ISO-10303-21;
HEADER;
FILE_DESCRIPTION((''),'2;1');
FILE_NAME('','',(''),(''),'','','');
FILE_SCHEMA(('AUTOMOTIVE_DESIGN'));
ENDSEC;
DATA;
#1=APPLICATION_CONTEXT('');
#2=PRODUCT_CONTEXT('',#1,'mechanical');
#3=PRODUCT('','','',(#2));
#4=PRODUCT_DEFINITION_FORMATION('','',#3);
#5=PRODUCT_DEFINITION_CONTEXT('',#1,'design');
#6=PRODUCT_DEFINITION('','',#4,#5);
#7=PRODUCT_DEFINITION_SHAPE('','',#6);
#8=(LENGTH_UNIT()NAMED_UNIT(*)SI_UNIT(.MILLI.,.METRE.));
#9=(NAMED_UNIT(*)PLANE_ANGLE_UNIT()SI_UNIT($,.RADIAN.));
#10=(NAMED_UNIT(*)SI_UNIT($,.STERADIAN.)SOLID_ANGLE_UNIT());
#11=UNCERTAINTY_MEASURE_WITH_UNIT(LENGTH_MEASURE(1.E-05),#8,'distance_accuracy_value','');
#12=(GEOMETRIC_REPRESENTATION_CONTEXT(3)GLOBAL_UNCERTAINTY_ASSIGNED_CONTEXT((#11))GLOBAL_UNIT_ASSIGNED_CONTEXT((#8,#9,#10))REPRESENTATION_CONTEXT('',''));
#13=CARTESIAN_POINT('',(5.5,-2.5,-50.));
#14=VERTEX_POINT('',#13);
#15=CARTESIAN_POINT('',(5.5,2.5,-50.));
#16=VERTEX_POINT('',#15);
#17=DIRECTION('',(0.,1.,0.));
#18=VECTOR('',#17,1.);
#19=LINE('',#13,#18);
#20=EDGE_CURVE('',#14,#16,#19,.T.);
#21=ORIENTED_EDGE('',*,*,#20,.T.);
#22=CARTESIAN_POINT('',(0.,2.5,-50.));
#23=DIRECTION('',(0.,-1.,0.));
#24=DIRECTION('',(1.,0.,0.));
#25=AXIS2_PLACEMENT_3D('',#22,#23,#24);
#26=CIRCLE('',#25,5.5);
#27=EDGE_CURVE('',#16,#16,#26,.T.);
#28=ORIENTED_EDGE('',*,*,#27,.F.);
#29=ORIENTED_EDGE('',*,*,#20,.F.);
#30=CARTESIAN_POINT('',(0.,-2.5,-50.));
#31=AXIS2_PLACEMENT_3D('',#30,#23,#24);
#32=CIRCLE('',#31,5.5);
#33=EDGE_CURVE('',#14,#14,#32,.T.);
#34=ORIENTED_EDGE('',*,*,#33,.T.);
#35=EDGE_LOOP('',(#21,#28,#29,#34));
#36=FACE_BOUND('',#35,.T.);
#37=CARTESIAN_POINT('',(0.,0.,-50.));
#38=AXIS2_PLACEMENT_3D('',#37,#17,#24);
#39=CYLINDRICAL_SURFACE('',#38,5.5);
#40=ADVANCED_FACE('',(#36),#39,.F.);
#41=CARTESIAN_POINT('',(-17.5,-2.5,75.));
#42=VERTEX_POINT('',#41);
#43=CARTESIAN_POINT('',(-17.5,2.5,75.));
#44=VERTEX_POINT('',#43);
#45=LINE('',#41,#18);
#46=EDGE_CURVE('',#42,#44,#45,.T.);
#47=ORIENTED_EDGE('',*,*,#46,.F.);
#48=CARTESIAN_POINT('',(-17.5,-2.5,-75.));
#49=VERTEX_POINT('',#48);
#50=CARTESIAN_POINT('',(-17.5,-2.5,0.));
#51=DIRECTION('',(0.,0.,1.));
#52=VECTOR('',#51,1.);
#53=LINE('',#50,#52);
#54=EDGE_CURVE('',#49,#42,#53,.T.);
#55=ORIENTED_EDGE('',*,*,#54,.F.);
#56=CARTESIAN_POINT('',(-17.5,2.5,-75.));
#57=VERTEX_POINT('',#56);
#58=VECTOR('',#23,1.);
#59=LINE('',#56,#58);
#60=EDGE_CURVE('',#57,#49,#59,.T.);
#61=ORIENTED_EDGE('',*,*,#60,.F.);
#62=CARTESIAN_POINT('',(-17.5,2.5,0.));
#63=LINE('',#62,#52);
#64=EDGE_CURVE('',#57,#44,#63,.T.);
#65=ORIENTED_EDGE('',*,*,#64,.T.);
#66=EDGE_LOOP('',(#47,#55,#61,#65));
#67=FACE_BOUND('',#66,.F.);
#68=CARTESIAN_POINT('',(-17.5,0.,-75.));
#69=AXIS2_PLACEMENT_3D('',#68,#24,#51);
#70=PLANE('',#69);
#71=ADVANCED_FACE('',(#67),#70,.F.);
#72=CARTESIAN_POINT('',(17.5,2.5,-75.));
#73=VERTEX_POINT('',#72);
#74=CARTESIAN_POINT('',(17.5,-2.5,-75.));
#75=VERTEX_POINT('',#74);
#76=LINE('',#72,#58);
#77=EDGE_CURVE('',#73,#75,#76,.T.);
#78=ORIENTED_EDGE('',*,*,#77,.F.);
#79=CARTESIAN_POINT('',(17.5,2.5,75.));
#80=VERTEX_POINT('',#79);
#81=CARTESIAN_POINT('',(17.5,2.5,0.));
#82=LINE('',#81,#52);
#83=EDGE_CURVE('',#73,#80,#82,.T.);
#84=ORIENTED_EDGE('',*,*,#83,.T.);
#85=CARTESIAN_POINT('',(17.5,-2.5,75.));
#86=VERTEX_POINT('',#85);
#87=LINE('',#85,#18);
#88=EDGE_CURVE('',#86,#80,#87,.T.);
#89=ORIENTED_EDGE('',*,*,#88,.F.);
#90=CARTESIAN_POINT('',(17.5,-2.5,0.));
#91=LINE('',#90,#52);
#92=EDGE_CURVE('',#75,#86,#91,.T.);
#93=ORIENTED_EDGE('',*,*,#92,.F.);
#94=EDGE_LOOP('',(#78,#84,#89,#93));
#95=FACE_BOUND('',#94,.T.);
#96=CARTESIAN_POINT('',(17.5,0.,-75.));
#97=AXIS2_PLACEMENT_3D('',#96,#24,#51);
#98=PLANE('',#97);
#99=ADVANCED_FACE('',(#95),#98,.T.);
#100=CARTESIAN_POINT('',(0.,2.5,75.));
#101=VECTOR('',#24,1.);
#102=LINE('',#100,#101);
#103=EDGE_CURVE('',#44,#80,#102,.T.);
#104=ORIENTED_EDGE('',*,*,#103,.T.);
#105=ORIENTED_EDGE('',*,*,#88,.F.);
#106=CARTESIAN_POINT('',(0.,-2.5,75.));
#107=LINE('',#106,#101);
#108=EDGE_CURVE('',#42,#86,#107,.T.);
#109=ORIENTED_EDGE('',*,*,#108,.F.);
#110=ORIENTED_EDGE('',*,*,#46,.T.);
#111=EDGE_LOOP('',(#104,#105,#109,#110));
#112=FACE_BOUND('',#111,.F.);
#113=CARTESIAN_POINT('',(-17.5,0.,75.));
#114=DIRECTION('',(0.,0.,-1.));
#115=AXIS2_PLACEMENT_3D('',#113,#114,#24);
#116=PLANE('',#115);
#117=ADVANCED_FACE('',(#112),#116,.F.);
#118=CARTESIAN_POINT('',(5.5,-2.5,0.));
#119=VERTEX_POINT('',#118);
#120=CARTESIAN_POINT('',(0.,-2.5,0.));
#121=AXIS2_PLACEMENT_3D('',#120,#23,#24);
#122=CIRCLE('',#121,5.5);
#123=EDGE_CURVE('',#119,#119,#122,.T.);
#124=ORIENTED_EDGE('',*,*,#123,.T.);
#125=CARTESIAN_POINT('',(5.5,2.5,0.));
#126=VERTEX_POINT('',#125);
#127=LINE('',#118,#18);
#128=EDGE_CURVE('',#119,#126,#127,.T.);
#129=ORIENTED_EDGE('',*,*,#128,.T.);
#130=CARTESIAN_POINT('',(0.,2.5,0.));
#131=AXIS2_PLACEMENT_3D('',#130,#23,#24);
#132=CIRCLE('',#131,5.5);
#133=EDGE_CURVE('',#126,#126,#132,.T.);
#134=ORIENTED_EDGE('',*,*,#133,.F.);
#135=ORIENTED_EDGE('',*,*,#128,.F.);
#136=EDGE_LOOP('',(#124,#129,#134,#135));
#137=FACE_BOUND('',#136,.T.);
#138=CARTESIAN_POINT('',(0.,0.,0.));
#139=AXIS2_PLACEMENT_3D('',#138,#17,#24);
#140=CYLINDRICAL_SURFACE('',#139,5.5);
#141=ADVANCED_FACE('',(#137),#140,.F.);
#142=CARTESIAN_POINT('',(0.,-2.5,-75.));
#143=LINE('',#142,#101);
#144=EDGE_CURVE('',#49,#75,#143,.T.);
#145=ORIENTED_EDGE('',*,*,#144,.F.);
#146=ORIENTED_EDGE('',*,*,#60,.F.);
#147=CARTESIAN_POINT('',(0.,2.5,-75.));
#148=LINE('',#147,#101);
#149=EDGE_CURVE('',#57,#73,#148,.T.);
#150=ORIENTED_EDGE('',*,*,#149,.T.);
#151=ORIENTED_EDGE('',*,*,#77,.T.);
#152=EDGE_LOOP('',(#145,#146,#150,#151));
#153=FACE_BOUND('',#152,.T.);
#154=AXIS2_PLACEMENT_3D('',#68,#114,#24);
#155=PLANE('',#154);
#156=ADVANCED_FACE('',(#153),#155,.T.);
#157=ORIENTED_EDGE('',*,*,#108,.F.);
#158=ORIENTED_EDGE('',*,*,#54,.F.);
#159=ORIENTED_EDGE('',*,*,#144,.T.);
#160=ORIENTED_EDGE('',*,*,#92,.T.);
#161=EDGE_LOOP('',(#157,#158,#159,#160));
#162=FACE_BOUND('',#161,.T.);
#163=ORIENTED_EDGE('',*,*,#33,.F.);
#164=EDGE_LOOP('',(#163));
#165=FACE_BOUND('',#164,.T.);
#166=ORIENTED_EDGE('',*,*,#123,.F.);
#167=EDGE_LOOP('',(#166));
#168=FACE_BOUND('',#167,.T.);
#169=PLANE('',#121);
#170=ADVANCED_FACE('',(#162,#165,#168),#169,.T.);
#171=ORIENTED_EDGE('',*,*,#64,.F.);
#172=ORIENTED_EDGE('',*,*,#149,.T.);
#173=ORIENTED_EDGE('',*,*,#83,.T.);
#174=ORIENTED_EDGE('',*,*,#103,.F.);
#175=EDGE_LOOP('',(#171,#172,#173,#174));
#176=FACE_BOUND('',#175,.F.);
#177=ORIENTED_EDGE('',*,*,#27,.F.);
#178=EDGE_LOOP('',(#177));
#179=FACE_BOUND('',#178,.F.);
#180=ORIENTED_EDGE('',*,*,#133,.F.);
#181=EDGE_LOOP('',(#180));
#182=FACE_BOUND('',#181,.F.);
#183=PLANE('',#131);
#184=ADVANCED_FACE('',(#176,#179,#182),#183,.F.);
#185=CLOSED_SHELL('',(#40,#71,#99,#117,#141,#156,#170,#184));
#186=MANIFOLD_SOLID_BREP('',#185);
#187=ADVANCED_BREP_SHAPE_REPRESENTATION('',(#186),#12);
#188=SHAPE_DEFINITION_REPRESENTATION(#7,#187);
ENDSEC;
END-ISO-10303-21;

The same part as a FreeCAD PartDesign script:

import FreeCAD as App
import Part
import Sketcher


def add_polygon(sketch, points):
    """Adds a closed chain of lines whose ends are joined by coincident constraints."""
    first, n = sketch.GeometryCount, len(points)
    for a, b in zip(points, points[1:] + points[:1]):
        sketch.addGeometry(Part.LineSegment(App.Vector(*a, 0), App.Vector(*b, 0)), False)
    for i in range(n):
        sketch.addConstraint(Sketcher.Constraint("Coincident", first + i, 2, first + (i + 1) % n, 1))

doc = App.newDocument("Part")
body = doc.addObject("PartDesign::Body", "Body")

sketch1 = doc.addObject("Sketcher::SketchObject", "Sketch")
body.addObject(sketch1)
sketch1.AttachmentSupport = (doc.XZ_Plane, [""])
sketch1.MapMode = "FlatFace"
add_polygon(sketch1, [(-17.5, 75), (-17.5, -75), (17.5, -75), (17.5, 75)])
sketch1.addGeometry(Part.Circle(App.Vector(0, -50, 0), App.Vector(0, 0, 1), 5.5), False)
sketch1.addGeometry(Part.Circle(App.Vector(0, 0, 0), App.Vector(0, 0, 1), 5.5), False)
sketch1.addConstraint([
    Sketcher.Constraint("Vertical", 0),
    Sketcher.Constraint("Horizontal", 1),
    Sketcher.Constraint("Vertical", 2),
    Sketcher.Constraint("Horizontal", 3),
    Sketcher.Constraint("Coincident", 5, 3, -1, 1),
    Sketcher.Constraint("Equal", 4, 5),
    Sketcher.Constraint("Symmetric", 0, 2, 2, 2, -1, 1),
    Sketcher.Constraint("PointOnObject", 4, 3, -2),
    Sketcher.Constraint("Diameter", 4, 11.0),
    Sketcher.Constraint("DistanceX", 1, 1, 1, 2, 35.0),
    Sketcher.Constraint("DistanceY", 0, 2, 0, 1, 150.0),
    Sketcher.Constraint("DistanceY", 4, 3, -1, 1, 50.0),
])
pad1 = doc.addObject("PartDesign::Pad", "Pad")
body.addObject(pad1)
pad1.Profile = sketch1
pad1.Length = 5
pad1.Midplane = True

doc.recompute()
